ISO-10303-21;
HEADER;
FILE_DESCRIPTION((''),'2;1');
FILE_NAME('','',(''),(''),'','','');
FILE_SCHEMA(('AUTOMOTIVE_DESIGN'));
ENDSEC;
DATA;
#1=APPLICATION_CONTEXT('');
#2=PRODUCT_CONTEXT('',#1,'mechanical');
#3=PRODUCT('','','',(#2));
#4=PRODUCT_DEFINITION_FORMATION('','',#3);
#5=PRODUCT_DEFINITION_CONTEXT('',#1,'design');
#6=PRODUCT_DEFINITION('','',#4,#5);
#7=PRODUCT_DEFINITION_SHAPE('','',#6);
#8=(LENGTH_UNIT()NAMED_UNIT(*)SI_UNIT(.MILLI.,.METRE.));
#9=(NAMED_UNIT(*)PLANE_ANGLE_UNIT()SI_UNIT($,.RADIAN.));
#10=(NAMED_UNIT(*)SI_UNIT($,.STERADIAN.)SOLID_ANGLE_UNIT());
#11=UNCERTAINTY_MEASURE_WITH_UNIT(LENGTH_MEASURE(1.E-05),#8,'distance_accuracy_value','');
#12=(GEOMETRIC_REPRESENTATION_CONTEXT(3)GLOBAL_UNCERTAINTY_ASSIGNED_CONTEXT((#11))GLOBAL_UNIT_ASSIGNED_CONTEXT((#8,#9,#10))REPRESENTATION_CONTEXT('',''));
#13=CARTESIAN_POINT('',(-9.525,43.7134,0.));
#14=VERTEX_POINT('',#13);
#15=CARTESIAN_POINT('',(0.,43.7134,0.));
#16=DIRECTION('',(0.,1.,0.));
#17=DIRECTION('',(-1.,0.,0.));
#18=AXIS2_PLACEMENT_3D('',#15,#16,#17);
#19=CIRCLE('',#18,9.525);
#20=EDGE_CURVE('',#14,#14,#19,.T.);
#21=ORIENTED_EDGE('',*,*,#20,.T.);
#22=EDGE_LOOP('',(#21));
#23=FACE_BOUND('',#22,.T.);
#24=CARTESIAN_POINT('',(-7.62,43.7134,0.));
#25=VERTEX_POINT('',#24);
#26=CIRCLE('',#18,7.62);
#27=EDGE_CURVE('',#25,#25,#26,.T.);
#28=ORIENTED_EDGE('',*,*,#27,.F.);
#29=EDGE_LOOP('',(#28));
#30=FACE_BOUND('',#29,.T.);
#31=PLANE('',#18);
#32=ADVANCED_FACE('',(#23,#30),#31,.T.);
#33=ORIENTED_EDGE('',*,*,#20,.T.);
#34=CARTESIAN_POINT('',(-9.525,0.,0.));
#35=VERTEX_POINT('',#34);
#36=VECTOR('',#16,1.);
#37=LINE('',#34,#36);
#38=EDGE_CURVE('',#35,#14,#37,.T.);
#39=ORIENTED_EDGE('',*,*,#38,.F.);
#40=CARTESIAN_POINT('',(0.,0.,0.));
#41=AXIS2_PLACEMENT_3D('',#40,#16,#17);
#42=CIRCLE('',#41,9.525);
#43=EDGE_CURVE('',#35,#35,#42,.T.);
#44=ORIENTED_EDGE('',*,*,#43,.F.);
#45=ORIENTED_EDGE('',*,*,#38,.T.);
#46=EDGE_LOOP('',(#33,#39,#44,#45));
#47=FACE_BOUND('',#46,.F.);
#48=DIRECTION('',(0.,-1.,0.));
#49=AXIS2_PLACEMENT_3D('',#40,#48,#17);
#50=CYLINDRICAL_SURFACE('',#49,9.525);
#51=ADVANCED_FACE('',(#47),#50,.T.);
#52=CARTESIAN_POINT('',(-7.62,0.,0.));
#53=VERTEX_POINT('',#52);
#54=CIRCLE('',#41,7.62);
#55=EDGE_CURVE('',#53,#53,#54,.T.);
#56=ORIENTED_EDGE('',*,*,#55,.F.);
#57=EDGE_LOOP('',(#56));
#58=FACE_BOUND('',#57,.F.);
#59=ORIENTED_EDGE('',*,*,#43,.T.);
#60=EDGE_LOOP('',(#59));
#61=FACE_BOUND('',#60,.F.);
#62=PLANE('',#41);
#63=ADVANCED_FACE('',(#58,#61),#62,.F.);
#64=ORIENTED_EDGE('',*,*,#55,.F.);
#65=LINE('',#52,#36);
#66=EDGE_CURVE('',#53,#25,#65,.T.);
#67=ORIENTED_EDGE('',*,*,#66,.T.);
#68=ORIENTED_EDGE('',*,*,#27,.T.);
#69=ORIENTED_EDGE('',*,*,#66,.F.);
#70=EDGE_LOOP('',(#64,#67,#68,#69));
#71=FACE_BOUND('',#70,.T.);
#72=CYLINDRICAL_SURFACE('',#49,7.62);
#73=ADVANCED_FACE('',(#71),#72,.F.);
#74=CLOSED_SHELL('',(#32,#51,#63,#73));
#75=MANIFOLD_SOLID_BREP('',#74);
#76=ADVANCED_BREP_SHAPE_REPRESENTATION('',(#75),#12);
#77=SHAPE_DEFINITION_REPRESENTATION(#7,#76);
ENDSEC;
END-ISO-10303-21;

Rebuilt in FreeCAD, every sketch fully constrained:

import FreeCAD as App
import Part
import Sketcher
Q = App.Units.Quantity

doc = App.newDocument("Part")
params = doc.addObject("Spreadsheet::Sheet", "Params")
for row, (alias, value) in enumerate([
    ("sketch1_diameter", "0.6 in"),
    ("sketch1_diameter2", "0.75 in"),
    ("pad1_length", "1.721 in"),
], start=1):
    params.set(f"A{row}", alias)
    params.set(f"B{row}", "=" + value)
    params.setAlias(f"B{row}", alias)

body = doc.addObject("PartDesign::Body", "Body")

sketch1 = doc.addObject("Sketcher::SketchObject", "Sketch")
body.addObject(sketch1)
sketch1.AttachmentSupport = (doc.XZ_Plane, [""])
sketch1.MapMode = "FlatFace"
sketch1.addGeometry([
    Part.Circle(App.Vector(0, 0, 0), App.Vector(0, 0, 1), 9.525),
    Part.Circle(App.Vector(0, 0, 0), App.Vector(0, 0, 1), 7.62),
], False)
sketch1.addConstraint([
    Sketcher.Constraint("Coincident", 0, 3, -1, 1),
    Sketcher.Constraint("Coincident", 1, 3, -1, 1),
    Sketcher.Constraint("Diameter", 1, Q("0.6 in")),
    Sketcher.Constraint("Diameter", 0, Q("0.75 in")),
])
sketch1.setExpression("Constraints[2]", "Params.sketch1_diameter")
sketch1.setExpression("Constraints[3]", "Params.sketch1_diameter2")
pad1 = doc.addObject("PartDesign::Pad", "Pad")
body.addObject(pad1)
pad1.Profile = sketch1
pad1.setExpression("Length", "Params.pad1_length")
pad1.Reversed = True

doc.recompute()
